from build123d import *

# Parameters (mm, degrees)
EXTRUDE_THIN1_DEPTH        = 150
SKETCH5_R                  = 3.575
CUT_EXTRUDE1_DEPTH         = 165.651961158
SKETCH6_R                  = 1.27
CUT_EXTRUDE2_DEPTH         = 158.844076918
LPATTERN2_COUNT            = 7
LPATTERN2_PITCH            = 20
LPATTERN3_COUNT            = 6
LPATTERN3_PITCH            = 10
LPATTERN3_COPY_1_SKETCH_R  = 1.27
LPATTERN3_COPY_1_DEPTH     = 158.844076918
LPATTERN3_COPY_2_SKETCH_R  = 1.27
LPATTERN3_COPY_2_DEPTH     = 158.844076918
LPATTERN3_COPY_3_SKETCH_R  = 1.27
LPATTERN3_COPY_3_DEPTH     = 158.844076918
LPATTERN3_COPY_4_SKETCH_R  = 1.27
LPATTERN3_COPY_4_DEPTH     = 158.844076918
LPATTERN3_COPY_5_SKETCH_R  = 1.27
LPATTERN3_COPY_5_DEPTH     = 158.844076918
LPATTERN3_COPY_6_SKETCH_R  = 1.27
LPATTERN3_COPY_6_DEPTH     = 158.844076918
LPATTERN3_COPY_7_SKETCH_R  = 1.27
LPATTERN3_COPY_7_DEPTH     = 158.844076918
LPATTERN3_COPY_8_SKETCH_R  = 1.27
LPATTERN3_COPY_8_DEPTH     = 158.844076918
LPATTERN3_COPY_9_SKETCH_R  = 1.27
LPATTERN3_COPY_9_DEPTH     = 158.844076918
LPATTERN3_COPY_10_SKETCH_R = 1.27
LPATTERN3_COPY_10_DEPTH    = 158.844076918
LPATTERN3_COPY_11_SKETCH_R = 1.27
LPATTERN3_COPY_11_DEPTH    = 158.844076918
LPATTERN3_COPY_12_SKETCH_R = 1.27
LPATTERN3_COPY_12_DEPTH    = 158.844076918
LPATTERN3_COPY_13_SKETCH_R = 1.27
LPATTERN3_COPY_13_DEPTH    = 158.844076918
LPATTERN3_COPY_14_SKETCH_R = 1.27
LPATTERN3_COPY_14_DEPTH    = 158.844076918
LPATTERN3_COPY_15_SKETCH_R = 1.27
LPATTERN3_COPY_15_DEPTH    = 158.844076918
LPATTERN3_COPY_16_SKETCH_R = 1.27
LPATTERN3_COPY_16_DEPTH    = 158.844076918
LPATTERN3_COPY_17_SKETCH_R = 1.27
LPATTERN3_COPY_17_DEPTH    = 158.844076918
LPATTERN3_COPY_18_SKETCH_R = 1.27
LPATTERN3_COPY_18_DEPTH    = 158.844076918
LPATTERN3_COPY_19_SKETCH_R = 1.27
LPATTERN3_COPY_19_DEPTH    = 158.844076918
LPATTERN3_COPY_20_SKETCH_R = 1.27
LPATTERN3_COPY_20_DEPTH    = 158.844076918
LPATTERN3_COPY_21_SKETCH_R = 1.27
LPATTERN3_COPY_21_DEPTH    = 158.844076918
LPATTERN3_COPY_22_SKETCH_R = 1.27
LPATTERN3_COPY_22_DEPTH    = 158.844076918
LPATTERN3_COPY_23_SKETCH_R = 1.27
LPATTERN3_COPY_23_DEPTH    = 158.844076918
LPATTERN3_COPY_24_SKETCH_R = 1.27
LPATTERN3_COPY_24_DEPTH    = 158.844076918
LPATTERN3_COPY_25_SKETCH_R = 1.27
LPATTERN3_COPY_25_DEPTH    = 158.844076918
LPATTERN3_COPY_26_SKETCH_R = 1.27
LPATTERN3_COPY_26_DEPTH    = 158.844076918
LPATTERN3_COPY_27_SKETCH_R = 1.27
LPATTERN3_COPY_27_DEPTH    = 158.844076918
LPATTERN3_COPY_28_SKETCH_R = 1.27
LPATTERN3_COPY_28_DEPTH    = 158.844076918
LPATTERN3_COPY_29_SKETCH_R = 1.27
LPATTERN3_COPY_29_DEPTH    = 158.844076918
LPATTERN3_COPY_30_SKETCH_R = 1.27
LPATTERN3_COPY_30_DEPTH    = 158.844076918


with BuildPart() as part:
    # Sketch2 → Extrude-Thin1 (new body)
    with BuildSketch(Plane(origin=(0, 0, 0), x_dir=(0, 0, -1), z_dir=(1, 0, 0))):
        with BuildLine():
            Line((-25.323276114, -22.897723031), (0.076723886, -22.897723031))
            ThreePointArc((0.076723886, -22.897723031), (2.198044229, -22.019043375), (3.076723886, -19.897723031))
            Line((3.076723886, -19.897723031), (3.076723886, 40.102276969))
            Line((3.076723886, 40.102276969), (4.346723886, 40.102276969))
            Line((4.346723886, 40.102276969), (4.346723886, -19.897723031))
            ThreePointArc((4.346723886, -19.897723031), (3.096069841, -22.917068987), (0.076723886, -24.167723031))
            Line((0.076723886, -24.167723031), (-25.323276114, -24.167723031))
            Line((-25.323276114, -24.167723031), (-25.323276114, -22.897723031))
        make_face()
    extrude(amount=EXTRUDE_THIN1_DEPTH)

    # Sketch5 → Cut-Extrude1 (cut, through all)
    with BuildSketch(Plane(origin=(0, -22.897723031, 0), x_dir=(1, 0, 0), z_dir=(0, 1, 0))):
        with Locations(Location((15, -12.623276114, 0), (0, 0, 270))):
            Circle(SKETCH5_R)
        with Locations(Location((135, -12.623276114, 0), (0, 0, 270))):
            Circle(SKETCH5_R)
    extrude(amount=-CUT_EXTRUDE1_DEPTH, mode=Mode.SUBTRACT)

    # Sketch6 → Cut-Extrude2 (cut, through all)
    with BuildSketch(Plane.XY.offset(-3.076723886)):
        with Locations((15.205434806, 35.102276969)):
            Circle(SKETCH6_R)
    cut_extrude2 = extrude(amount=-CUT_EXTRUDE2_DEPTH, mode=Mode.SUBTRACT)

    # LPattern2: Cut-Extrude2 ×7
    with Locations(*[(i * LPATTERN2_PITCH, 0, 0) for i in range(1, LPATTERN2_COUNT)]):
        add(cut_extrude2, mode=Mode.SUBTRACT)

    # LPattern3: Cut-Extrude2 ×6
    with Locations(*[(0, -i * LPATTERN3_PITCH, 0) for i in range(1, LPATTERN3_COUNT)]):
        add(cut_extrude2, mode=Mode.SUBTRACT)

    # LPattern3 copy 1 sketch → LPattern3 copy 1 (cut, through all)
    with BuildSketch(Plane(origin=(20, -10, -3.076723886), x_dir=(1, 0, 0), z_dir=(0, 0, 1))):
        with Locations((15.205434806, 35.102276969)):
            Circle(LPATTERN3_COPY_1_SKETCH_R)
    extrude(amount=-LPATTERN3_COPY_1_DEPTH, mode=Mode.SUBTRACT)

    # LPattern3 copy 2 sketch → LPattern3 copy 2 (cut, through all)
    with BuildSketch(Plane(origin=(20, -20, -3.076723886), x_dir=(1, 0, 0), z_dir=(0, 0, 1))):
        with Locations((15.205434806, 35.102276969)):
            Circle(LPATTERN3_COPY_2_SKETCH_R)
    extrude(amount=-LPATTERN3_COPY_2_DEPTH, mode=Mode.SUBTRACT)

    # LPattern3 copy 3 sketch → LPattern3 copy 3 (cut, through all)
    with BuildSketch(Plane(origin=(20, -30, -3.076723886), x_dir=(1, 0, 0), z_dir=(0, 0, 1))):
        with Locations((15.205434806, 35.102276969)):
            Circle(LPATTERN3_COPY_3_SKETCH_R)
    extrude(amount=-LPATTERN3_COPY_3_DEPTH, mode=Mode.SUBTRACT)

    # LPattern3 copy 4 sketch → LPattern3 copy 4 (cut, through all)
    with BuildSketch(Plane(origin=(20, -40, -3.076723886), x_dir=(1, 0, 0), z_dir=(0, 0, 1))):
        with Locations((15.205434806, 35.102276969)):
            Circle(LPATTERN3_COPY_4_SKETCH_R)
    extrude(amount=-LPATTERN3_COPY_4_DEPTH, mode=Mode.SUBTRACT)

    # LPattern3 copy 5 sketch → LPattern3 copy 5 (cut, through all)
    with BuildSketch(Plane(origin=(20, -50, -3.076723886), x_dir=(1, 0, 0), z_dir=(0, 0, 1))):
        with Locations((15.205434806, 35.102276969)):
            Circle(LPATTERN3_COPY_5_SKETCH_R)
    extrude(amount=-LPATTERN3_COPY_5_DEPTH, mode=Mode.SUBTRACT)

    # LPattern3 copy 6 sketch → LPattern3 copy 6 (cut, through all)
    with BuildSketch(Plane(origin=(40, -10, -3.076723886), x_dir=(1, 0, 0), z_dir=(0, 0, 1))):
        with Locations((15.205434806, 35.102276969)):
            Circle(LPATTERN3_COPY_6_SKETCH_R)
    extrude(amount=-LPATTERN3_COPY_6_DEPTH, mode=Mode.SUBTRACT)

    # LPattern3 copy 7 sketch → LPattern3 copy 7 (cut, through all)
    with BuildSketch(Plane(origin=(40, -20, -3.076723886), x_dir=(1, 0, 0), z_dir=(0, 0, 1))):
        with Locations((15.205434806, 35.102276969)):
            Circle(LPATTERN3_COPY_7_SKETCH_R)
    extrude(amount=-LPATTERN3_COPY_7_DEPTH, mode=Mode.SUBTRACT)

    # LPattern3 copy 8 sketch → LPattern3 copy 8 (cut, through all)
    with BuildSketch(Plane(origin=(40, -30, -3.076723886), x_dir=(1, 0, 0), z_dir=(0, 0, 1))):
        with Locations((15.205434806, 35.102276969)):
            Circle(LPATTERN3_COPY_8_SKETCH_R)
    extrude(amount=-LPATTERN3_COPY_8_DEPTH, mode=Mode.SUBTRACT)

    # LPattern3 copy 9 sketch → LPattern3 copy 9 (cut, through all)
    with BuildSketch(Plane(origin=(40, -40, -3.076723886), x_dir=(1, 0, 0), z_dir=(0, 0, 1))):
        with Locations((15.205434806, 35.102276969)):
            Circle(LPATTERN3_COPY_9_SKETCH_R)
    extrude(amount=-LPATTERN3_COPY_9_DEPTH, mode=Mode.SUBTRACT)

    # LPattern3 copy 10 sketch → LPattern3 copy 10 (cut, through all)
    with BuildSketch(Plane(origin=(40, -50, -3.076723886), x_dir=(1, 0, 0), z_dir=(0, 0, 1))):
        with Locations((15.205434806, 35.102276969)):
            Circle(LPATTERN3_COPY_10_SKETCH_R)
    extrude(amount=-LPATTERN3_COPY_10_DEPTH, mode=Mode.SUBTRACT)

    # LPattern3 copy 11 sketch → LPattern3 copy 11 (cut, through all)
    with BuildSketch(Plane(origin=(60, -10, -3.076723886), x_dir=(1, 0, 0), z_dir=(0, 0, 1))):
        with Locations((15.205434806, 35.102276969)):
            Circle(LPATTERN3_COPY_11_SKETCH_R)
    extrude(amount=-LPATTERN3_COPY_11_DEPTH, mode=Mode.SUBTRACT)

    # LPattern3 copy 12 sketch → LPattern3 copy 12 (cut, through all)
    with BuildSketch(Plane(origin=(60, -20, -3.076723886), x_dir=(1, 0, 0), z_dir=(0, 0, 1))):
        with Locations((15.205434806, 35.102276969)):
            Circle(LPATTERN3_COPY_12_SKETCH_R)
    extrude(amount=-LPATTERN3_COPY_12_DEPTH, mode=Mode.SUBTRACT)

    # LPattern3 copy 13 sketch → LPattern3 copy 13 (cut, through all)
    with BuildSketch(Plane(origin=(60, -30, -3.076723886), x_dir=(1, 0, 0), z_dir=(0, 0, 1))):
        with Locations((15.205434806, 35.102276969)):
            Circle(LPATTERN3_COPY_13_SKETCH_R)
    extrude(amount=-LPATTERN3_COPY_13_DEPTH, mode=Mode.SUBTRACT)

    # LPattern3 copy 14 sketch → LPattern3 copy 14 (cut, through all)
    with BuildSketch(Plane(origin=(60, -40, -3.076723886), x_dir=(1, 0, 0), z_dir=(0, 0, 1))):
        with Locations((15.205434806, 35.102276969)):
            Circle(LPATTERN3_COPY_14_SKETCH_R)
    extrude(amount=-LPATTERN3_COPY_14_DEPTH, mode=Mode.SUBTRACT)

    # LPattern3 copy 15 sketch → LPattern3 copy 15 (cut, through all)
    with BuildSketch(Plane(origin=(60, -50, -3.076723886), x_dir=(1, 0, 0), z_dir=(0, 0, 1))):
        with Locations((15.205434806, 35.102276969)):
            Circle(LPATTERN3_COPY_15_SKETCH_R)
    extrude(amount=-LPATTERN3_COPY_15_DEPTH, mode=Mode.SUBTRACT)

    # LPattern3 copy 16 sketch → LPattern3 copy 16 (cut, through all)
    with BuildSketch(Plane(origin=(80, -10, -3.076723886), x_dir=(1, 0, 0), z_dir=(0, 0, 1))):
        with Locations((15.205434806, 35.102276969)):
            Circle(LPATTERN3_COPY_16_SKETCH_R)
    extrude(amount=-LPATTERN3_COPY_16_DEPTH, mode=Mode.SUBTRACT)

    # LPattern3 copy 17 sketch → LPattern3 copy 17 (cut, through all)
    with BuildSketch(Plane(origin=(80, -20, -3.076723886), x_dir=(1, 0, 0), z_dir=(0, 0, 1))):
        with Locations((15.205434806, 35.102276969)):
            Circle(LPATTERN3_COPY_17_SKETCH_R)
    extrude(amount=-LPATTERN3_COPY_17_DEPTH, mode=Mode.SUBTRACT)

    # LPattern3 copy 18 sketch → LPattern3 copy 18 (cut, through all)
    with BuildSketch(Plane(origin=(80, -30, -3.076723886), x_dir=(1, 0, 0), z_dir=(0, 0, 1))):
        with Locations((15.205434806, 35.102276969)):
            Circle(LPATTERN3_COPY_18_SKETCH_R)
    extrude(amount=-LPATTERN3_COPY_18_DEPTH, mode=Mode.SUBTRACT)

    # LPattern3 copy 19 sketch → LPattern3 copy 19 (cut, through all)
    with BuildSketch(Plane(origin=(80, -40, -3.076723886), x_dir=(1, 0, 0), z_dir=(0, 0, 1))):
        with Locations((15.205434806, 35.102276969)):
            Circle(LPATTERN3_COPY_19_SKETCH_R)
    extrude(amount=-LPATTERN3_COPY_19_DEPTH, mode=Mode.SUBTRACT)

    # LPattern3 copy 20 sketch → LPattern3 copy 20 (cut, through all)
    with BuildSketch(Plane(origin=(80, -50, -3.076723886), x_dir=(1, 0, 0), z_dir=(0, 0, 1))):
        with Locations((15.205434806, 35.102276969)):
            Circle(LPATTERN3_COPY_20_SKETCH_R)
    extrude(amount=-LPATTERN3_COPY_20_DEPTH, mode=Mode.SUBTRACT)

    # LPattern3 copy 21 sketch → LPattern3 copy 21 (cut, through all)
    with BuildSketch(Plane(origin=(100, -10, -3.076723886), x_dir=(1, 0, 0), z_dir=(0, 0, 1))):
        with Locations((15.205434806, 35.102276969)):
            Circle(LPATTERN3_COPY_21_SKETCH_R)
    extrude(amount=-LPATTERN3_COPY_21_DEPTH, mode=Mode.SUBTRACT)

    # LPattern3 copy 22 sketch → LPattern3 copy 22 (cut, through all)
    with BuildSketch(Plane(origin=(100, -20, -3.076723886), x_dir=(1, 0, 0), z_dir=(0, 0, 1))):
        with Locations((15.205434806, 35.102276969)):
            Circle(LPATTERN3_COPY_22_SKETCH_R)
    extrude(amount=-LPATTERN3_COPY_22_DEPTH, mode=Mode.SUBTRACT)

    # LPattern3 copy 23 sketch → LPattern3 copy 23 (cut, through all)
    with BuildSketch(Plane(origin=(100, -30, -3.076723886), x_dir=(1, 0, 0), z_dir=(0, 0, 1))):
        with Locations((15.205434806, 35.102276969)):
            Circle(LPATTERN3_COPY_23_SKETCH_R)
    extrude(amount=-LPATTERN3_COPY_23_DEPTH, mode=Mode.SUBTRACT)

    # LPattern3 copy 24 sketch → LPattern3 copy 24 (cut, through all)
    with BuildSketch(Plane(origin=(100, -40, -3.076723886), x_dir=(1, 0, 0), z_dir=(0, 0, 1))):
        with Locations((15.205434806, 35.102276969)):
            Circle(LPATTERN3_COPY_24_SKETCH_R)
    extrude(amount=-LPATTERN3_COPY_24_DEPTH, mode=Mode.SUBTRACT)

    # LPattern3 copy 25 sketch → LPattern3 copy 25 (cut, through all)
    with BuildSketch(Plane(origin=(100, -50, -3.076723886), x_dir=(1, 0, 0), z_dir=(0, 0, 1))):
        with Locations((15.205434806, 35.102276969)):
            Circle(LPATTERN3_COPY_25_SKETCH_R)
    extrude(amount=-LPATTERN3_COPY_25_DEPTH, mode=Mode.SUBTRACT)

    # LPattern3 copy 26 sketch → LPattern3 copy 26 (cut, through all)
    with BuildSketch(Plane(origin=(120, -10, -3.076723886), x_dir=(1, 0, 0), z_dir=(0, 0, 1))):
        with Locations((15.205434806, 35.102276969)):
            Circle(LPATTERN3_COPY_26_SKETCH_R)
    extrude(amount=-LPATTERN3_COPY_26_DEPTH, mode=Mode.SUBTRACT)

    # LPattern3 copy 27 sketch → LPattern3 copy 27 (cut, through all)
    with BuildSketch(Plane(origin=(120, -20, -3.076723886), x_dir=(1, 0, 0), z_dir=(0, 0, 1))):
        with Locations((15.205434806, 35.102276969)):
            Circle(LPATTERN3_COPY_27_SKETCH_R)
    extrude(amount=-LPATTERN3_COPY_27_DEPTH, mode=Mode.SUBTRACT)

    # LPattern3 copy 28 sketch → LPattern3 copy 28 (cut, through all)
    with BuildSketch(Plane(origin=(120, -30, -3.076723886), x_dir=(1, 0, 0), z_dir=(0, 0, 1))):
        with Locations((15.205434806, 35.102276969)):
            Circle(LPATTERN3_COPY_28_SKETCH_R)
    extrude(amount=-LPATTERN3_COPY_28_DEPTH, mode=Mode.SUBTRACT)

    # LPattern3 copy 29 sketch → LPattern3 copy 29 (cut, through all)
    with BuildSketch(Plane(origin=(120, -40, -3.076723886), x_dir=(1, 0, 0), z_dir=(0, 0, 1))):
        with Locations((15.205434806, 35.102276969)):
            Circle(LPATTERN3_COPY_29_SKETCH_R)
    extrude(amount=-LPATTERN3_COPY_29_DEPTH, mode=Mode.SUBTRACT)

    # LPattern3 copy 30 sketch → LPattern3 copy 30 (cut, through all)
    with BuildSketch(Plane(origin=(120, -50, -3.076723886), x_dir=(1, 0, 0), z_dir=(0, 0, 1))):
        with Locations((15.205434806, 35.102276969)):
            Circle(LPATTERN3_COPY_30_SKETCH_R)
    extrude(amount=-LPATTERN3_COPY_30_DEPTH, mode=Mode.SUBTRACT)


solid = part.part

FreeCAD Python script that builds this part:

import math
import FreeCAD as App
import Part
import Sketcher
from FreeCAD import Vector
Q = App.Units.Quantity

doc = App.newDocument("Part")
params = doc.addObject("Spreadsheet::Sheet", "Params")
for row, (alias, value) in enumerate([
    ("sketch1_radius", "3 mm"),
    ("sketch1_width", "60 mm"),
    ("sketch1_radius2", "4.27 mm"),
    ("sketch1_height", "25.4 mm"),
    ("pad1_length", "150 mm"),
    ("sketch2_diameter", "7.15 mm"),
    ("sketch3_diameter", "2.54 mm"),
    ("linearpattern_pitch", "20 mm"),
    ("linearpattern2_pitch", "10 mm"),
    ("sketch4_diameter", "2.54 mm"),
    ("sketch5_diameter", "2.54 mm"),
    ("sketch6_diameter", "2.54 mm"),
    ("sketch7_diameter", "2.54 mm"),
    ("sketch8_diameter", "2.54 mm"),
    ("sketch9_diameter", "2.54 mm"),
    ("sketch10_diameter", "2.54 mm"),
    ("sketch11_diameter", "2.54 mm"),
    ("sketch12_diameter", "2.54 mm"),
    ("sketch13_diameter", "2.54 mm"),
    ("sketch14_diameter", "2.54 mm"),
    ("sketch15_diameter", "2.54 mm"),
    ("sketch16_diameter", "2.54 mm"),
    ("sketch17_diameter", "2.54 mm"),
    ("sketch18_diameter", "2.54 mm"),
    ("sketch19_diameter", "2.54 mm"),
    ("sketch20_diameter", "2.54 mm"),
    ("sketch21_diameter", "2.54 mm"),
    ("sketch22_diameter", "2.54 mm"),
    ("sketch23_diameter", "2.54 mm"),
    ("sketch24_diameter", "2.54 mm"),
    ("sketch25_diameter", "2.54 mm"),
    ("sketch26_diameter", "2.54 mm"),
    ("sketch27_diameter", "2.54 mm"),
    ("sketch28_diameter", "2.54 mm"),
    ("sketch29_diameter", "2.54 mm"),
    ("sketch30_diameter", "2.54 mm"),
    ("sketch31_diameter", "2.54 mm"),
    ("sketch32_diameter", "2.54 mm"),
    ("sketch33_diameter", "2.54 mm"),
], start=1):
    params.set(f"A{row}", alias)
    params.set(f"B{row}", "=" + value)
    params.setAlias(f"B{row}", alias)

body = doc.addObject("PartDesign::Body", "Body")

# Sketch on YZ plane
sketch1 = doc.addObject("Sketcher::SketchObject", "Sketch")
body.addObject(sketch1)
sketch1.AttachmentSupport = (doc.YZ_Plane, [""])
sketch1.MapMode = "FlatFace"
sketch1.addGeometry(Part.LineSegment(Vector(-22.897723, -0.076724, 0), Vector(-22.897723, 25.323276, 0)), False)
sketch1.addGeometry(Part.LineSegment(Vector(-22.897723, 25.323276, 0), Vector(-24.167723, 25.323276, 0)), False)
sketch1.addGeometry(Part.LineSegment(Vector(-24.167723, 25.323276, 0), Vector(-24.167723, -0.076724, 0)), False)
sketch1.addGeometry(Part.ArcOfCircle(Part.Circle(Vector(-19.897723, -0.076724, 0), Vector(0, 0, 1), 4.27), math.radians(-180), math.radians(-90)), False)
sketch1.addGeometry(Part.LineSegment(Vector(-19.897723, -4.346724, 0), Vector(40.102277, -4.346724, 0)), False)
sketch1.addGeometry(Part.LineSegment(Vector(40.102277, -4.346724, 0), Vector(40.102277, -3.076724, 0)), False)
sketch1.addGeometry(Part.LineSegment(Vector(40.102277, -3.076724, 0), Vector(-19.897723, -3.076724, 0)), False)
sketch1.addGeometry(Part.ArcOfCircle(Part.Circle(Vector(-19.897723, -0.076724, 0), Vector(0, 0, 1), 3), math.radians(180), math.radians(270)), False)
sketch1.addConstraint(Sketcher.Constraint("Coincident", 0, 2, 1, 1))
sketch1.addConstraint(Sketcher.Constraint("Coincident", 1, 2, 2, 1))
sketch1.addConstraint(Sketcher.Constraint("Tangent", 2, 2, 3, 1))
sketch1.addConstraint(Sketcher.Constraint("Tangent", 3, 2, 4, 1))
sketch1.addConstraint(Sketcher.Constraint("Coincident", 4, 2, 5, 1))
sketch1.addConstraint(Sketcher.Constraint("Coincident", 5, 2, 6, 1))
sketch1.addConstraint(Sketcher.Constraint("Tangent", 6, 2, 7, 2))
sketch1.addConstraint(Sketcher.Constraint("Tangent", 7, 1, 0, 1))
sketch1.addConstraint(Sketcher.Constraint("Vertical", 0))
sketch1.addConstraint(Sketcher.Constraint("Horizontal", 1))
sketch1.addConstraint(Sketcher.Constraint("Vertical", 2))
sketch1.addConstraint(Sketcher.Constraint("Horizontal", 4))
sketch1.addConstraint(Sketcher.Constraint("Vertical", 5))
sketch1.addConstraint(Sketcher.Constraint("Horizontal", 6))
sketch1.addConstraint(Sketcher.Constraint("Coincident", 7, 3, 3, 3))
sketch1.addConstraint(Sketcher.Constraint("Radius", 7, Q("3 mm")))
sketch1.addConstraint(Sketcher.Constraint("DistanceX", 4, 1, 4, 2, Q("60 mm")))
sketch1.addConstraint(Sketcher.Constraint("Radius", 3, Q("4.27 mm")))
sketch1.addConstraint(Sketcher.Constraint("DistanceY", 0, 1, 0, 2, Q("25.4 mm")))
sketch1.addConstraint(Sketcher.Constraint("DistanceX", 3, 3, -1, 1, Q("19.897723 mm")))
sketch1.addConstraint(Sketcher.Constraint("DistanceY", 3, 3, -1, 1, Q("0.076724 mm")))
sketch1.setExpression("Constraints[15]", "Params.sketch1_radius")
sketch1.setExpression("Constraints[16]", "Params.sketch1_width")
sketch1.setExpression("Constraints[17]", "Params.sketch1_radius2")
sketch1.setExpression("Constraints[18]", "Params.sketch1_height")
pad1 = doc.addObject("PartDesign::Pad", "Pad")
body.addObject(pad1)
pad1.Profile = sketch1
pad1.setExpression("Length", "Params.pad1_length")

# Sketch on XZ plane
sketch2 = doc.addObject("Sketcher::SketchObject", "Sketch001")
body.addObject(sketch2)
sketch2.AttachmentSupport = (doc.XZ_Plane, [""])
sketch2.MapMode = "FlatFace"
sketch2.AttachmentOffset = App.Placement(Vector(0, 0, 22.897723), App.Rotation())
sketch2.addGeometry(Part.Circle(Vector(15, 12.623276, 0), Vector(0, 0, 1), 3.575), False)
sketch2.addGeometry(Part.Circle(Vector(135, 12.623276, 0), Vector(0, 0, 1), 3.575), False)
sketch2.addConstraint(Sketcher.Constraint("Equal", 0, 1))
sketch2.addConstraint(Sketcher.Constraint("Horizontal", 0, 3, 1, 3))
sketch2.addConstraint(Sketcher.Constraint("Diameter", 0, Q("7.15 mm")))
sketch2.addConstraint(Sketcher.Constraint("DistanceX", -1, 1, 0, 3, Q("15 mm")))
sketch2.addConstraint(Sketcher.Constraint("DistanceX", -1, 1, 1, 3, Q("135 mm")))
sketch2.addConstraint(Sketcher.Constraint("DistanceY", -1, 1, 0, 3, Q("12.623276 mm")))
sketch2.setExpression("Constraints[2]", "Params.sketch2_diameter")
pocket1 = doc.addObject("PartDesign::Pocket", "Pocket")
body.addObject(pocket1)
pocket1.Profile = sketch2
pocket1.Type = "ThroughAll"
pocket1.Reversed = True

# Sketch on XY plane
sketch3 = doc.addObject("Sketcher::SketchObject", "Sketch002")
body.addObject(sketch3)
sketch3.AttachmentSupport = (doc.XY_Plane, [""])
sketch3.MapMode = "FlatFace"
sketch3.AttachmentOffset = App.Placement(Vector(0, 0, -3.076724), App.Rotation())
sketch3.addGeometry(Part.Circle(Vector(15.205435, 35.102277, 0), Vector(0, 0, 1), 1.27), False)
sketch3.addConstraint(Sketcher.Constraint("Diameter", 0, Q("2.54 mm")))
sketch3.addConstraint(Sketcher.Constraint("DistanceX", -1, 1, 0, 3, Q("15.205435 mm")))
sketch3.addConstraint(Sketcher.Constraint("DistanceY", -1, 1, 0, 3, Q("35.102277 mm")))
sketch3.setExpression("Constraints[0]", "Params.sketch3_diameter")
pocket2 = doc.addObject("PartDesign::Pocket", "Pocket001")
body.addObject(pocket2)
pocket2.Profile = sketch3
pocket2.Type = "ThroughAll"
doc.recompute()

linearpattern = doc.addObject("PartDesign::LinearPattern", "LinearPattern")
body.addObject(linearpattern)
linearpattern.Originals = [pocket2]
linearpattern.Direction = (doc.X_Axis, [""])
linearpattern.Mode = "offset"
linearpattern.setExpression("Offset", "Params.linearpattern_pitch")
linearpattern.Occurrences = 7
body.Tip = linearpattern
doc.recompute()

linearpattern2 = doc.addObject("PartDesign::LinearPattern", "LinearPattern001")
body.addObject(linearpattern2)
linearpattern2.Originals = [pocket2]
linearpattern2.Direction = (doc.Y_Axis, [""])
linearpattern2.Mode = "offset"
linearpattern2.setExpression("Offset", "Params.linearpattern2_pitch")
linearpattern2.Occurrences = 6
linearpattern2.Reversed = True
body.Tip = linearpattern2

# Sketch on XY plane
sketch4 = doc.addObject("Sketcher::SketchObject", "Sketch003")
body.addObject(sketch4)
sketch4.AttachmentSupport = (doc.XY_Plane, [""])
sketch4.MapMode = "FlatFace"
sketch4.AttachmentOffset = App.Placement(Vector(0, 0, -3.076724), App.Rotation())
sketch4.addGeometry(Part.Circle(Vector(35.205435, 25.102277, 0), Vector(0, 0, 1), 1.27), False)
sketch4.addConstraint(Sketcher.Constraint("Diameter", 0, Q("2.54 mm")))
sketch4.addConstraint(Sketcher.Constraint("DistanceX", -1, 1, 0, 3, Q("35.205435 mm")))
sketch4.addConstraint(Sketcher.Constraint("DistanceY", -1, 1, 0, 3, Q("25.102277 mm")))
sketch4.setExpression("Constraints[0]", "Params.sketch4_diameter")
pocket3 = doc.addObject("PartDesign::Pocket", "Pocket002")
body.addObject(pocket3)
pocket3.Profile = sketch4
pocket3.Type = "ThroughAll"

# Sketch on XY plane
sketch5 = doc.addObject("Sketcher::SketchObject", "Sketch004")
body.addObject(sketch5)
sketch5.AttachmentSupport = (doc.XY_Plane, [""])
sketch5.MapMode = "FlatFace"
sketch5.AttachmentOffset = App.Placement(Vector(0, 0, -3.076724), App.Rotation())
sketch5.addGeometry(Part.Circle(Vector(35.205435, 15.102277, 0), Vector(0, 0, 1), 1.27), False)
sketch5.addConstraint(Sketcher.Constraint("Diameter", 0, Q("2.54 mm")))
sketch5.addConstraint(Sketcher.Constraint("DistanceX", -1, 1, 0, 3, Q("35.205435 mm")))
sketch5.addConstraint(Sketcher.Constraint("DistanceY", -1, 1, 0, 3, Q("15.102277 mm")))
sketch5.setExpression("Constraints[0]", "Params.sketch5_diameter")
pocket4 = doc.addObject("PartDesign::Pocket", "Pocket003")
body.addObject(pocket4)
pocket4.Profile = sketch5
pocket4.Type = "ThroughAll"

# Sketch on XY plane
sketch6 = doc.addObject("Sketcher::SketchObject", "Sketch005")
body.addObject(sketch6)
sketch6.AttachmentSupport = (doc.XY_Plane, [""])
sketch6.MapMode = "FlatFace"
sketch6.AttachmentOffset = App.Placement(Vector(0, 0, -3.076724), App.Rotation())
sketch6.addGeometry(Part.Circle(Vector(35.205435, 5.102277, 0), Vector(0, 0, 1), 1.27), False)
sketch6.addConstraint(Sketcher.Constraint("Diameter", 0, Q("2.54 mm")))
sketch6.addConstraint(Sketcher.Constraint("DistanceX", -1, 1, 0, 3, Q("35.205435 mm")))
sketch6.addConstraint(Sketcher.Constraint("DistanceY", -1, 1, 0, 3, Q("5.102277 mm")))
sketch6.setExpression("Constraints[0]", "Params.sketch6_diameter")
pocket5 = doc.addObject("PartDesign::Pocket", "Pocket004")
body.addObject(pocket5)
pocket5.Profile = sketch6
pocket5.Type = "ThroughAll"

# Sketch on XY plane
sketch7 = doc.addObject("Sketcher::SketchObject", "Sketch006")
body.addObject(sketch7)
sketch7.AttachmentSupport = (doc.XY_Plane, [""])
sketch7.MapMode = "FlatFace"
sketch7.AttachmentOffset = App.Placement(Vector(0, 0, -3.076724), App.Rotation())
sketch7.addGeometry(Part.Circle(Vector(35.205435, -4.897723, 0), Vector(0, 0, 1), 1.27), False)
sketch7.addConstraint(Sketcher.Constraint("Diameter", 0, Q("2.54 mm")))
sketch7.addConstraint(Sketcher.Constraint("DistanceX", -1, 1, 0, 3, Q("35.205435 mm")))
sketch7.addConstraint(Sketcher.Constraint("DistanceY", 0, 3, -1, 1, Q("4.897723 mm")))
sketch7.setExpression("Constraints[0]", "Params.sketch7_diameter")
pocket6 = doc.addObject("PartDesign::Pocket", "Pocket005")
body.addObject(pocket6)
pocket6.Profile = sketch7
pocket6.Type = "ThroughAll"

# Sketch on XY plane
sketch8 = doc.addObject("Sketcher::SketchObject", "Sketch007")
body.addObject(sketch8)
sketch8.AttachmentSupport = (doc.XY_Plane, [""])
sketch8.MapMode = "FlatFace"
sketch8.AttachmentOffset = App.Placement(Vector(0, 0, -3.076724), App.Rotation())
sketch8.addGeometry(Part.Circle(Vector(35.205435, -14.897723, 0), Vector(0, 0, 1), 1.27), False)
sketch8.addConstraint(Sketcher.Constraint("Diameter", 0, Q("2.54 mm")))
sketch8.addConstraint(Sketcher.Constraint("DistanceX", -1, 1, 0, 3, Q("35.205435 mm")))
sketch8.addConstraint(Sketcher.Constraint("DistanceY", 0, 3, -1, 1, Q("14.897723 mm")))
sketch8.setExpression("Constraints[0]", "Params.sketch8_diameter")
pocket7 = doc.addObject("PartDesign::Pocket", "Pocket006")
body.addObject(pocket7)
pocket7.Profile = sketch8
pocket7.Type = "ThroughAll"

# Sketch on XY plane
sketch9 = doc.addObject("Sketcher::SketchObject", "Sketch008")
body.addObject(sketch9)
sketch9.AttachmentSupport = (doc.XY_Plane, [""])
sketch9.MapMode = "FlatFace"
sketch9.AttachmentOffset = App.Placement(Vector(0, 0, -3.076724), App.Rotation())
sketch9.addGeometry(Part.Circle(Vector(55.205435, 25.102277, 0), Vector(0, 0, 1), 1.27), False)
sketch9.addConstraint(Sketcher.Constraint("Diameter", 0, Q("2.54 mm")))
sketch9.addConstraint(Sketcher.Constraint("DistanceX", -1, 1, 0, 3, Q("55.205435 mm")))
sketch9.addConstraint(Sketcher.Constraint("DistanceY", -1, 1, 0, 3, Q("25.102277 mm")))
sketch9.setExpression("Constraints[0]", "Params.sketch9_diameter")
pocket8 = doc.addObject("PartDesign::Pocket", "Pocket007")
body.addObject(pocket8)
pocket8.Profile = sketch9
pocket8.Type = "ThroughAll"

# Sketch on XY plane
sketch10 = doc.addObject("Sketcher::SketchObject", "Sketch009")
body.addObject(sketch10)
sketch10.AttachmentSupport = (doc.XY_Plane, [""])
sketch10.MapMode = "FlatFace"
sketch10.AttachmentOffset = App.Placement(Vector(0, 0, -3.076724), App.Rotation())
sketch10.addGeometry(Part.Circle(Vector(55.205435, 15.102277, 0), Vector(0, 0, 1), 1.27), False)
sketch10.addConstraint(Sketcher.Constraint("Diameter", 0, Q("2.54 mm")))
sketch10.addConstraint(Sketcher.Constraint("DistanceX", -1, 1, 0, 3, Q("55.205435 mm")))
sketch10.addConstraint(Sketcher.Constraint("DistanceY", -1, 1, 0, 3, Q("15.102277 mm")))
sketch10.setExpression("Constraints[0]", "Params.sketch10_diameter")
pocket9 = doc.addObject("PartDesign::Pocket", "Pocket008")
body.addObject(pocket9)
pocket9.Profile = sketch10
pocket9.Type = "ThroughAll"

# Sketch on XY plane
sketch11 = doc.addObject("Sketcher::SketchObject", "Sketch010")
body.addObject(sketch11)
sketch11.AttachmentSupport = (doc.XY_Plane, [""])
sketch11.MapMode = "FlatFace"
sketch11.AttachmentOffset = App.Placement(Vector(0, 0, -3.076724), App.Rotation())
sketch11.addGeometry(Part.Circle(Vector(55.205435, 5.102277, 0), Vector(0, 0, 1), 1.27), False)
sketch11.addConstraint(Sketcher.Constraint("Diameter", 0, Q("2.54 mm")))
sketch11.addConstraint(Sketcher.Constraint("DistanceX", -1, 1, 0, 3, Q("55.205435 mm")))
sketch11.addConstraint(Sketcher.Constraint("DistanceY", -1, 1, 0, 3, Q("5.102277 mm")))
sketch11.setExpression("Constraints[0]", "Params.sketch11_diameter")
pocket10 = doc.addObject("PartDesign::Pocket", "Pocket009")
body.addObject(pocket10)
pocket10.Profile = sketch11
pocket10.Type = "ThroughAll"

# Sketch on XY plane
sketch12 = doc.addObject("Sketcher::SketchObject", "Sketch011")
body.addObject(sketch12)
sketch12.AttachmentSupport = (doc.XY_Plane, [""])
sketch12.MapMode = "FlatFace"
sketch12.AttachmentOffset = App.Placement(Vector(0, 0, -3.076724), App.Rotation())
sketch12.addGeometry(Part.Circle(Vector(55.205435, -4.897723, 0), Vector(0, 0, 1), 1.27), False)
sketch12.addConstraint(Sketcher.Constraint("Diameter", 0, Q("2.54 mm")))
sketch12.addConstraint(Sketcher.Constraint("DistanceX", -1, 1, 0, 3, Q("55.205435 mm")))
sketch12.addConstraint(Sketcher.Constraint("DistanceY", 0, 3, -1, 1, Q("4.897723 mm")))
sketch12.setExpression("Constraints[0]", "Params.sketch12_diameter")
pocket11 = doc.addObject("PartDesign::Pocket", "Pocket010")
body.addObject(pocket11)
pocket11.Profile = sketch12
pocket11.Type = "ThroughAll"

# Sketch on XY plane
sketch13 = doc.addObject("Sketcher::SketchObject", "Sketch012")
body.addObject(sketch13)
sketch13.AttachmentSupport = (doc.XY_Plane, [""])
sketch13.MapMode = "FlatFace"
sketch13.AttachmentOffset = App.Placement(Vector(0, 0, -3.076724), App.Rotation())
sketch13.addGeometry(Part.Circle(Vector(55.205435, -14.897723, 0), Vector(0, 0, 1), 1.27), False)
sketch13.addConstraint(Sketcher.Constraint("Diameter", 0, Q("2.54 mm")))
sketch13.addConstraint(Sketcher.Constraint("DistanceX", -1, 1, 0, 3, Q("55.205435 mm")))
sketch13.addConstraint(Sketcher.Constraint("DistanceY", 0, 3, -1, 1, Q("14.897723 mm")))
sketch13.setExpression("Constraints[0]", "Params.sketch13_diameter")
pocket12 = doc.addObject("PartDesign::Pocket", "Pocket011")
body.addObject(pocket12)
pocket12.Profile = sketch13
pocket12.Type = "ThroughAll"

# Sketch on XY plane
sketch14 = doc.addObject("Sketcher::SketchObject", "Sketch013")
body.addObject(sketch14)
sketch14.AttachmentSupport = (doc.XY_Plane, [""])
sketch14.MapMode = "FlatFace"
sketch14.AttachmentOffset = App.Placement(Vector(0, 0, -3.076724), App.Rotation())
sketch14.addGeometry(Part.Circle(Vector(75.205435, 25.102277, 0), Vector(0, 0, 1), 1.27), False)
sketch14.addConstraint(Sketcher.Constraint("Diameter", 0, Q("2.54 mm")))
sketch14.addConstraint(Sketcher.Constraint("DistanceX", -1, 1, 0, 3, Q("75.205435 mm")))
sketch14.addConstraint(Sketcher.Constraint("DistanceY", -1, 1, 0, 3, Q("25.102277 mm")))
sketch14.setExpression("Constraints[0]", "Params.sketch14_diameter")
pocket13 = doc.addObject("PartDesign::Pocket", "Pocket012")
body.addObject(pocket13)
pocket13.Profile = sketch14
pocket13.Type = "ThroughAll"

# Sketch on XY plane
sketch15 = doc.addObject("Sketcher::SketchObject", "Sketch014")
body.addObject(sketch15)
sketch15.AttachmentSupport = (doc.XY_Plane, [""])
sketch15.MapMode = "FlatFace"
sketch15.AttachmentOffset = App.Placement(Vector(0, 0, -3.076724), App.Rotation())
sketch15.addGeometry(Part.Circle(Vector(75.205435, 15.102277, 0), Vector(0, 0, 1), 1.27), False)
sketch15.addConstraint(Sketcher.Constraint("Diameter", 0, Q("2.54 mm")))
sketch15.addConstraint(Sketcher.Constraint("DistanceX", -1, 1, 0, 3, Q("75.205435 mm")))
sketch15.addConstraint(Sketcher.Constraint("DistanceY", -1, 1, 0, 3, Q("15.102277 mm")))
sketch15.setExpression("Constraints[0]", "Params.sketch15_diameter")
pocket14 = doc.addObject("PartDesign::Pocket", "Pocket013")
body.addObject(pocket14)
pocket14.Profile = sketch15
pocket14.Type = "ThroughAll"

# Sketch on XY plane
sketch16 = doc.addObject("Sketcher::SketchObject", "Sketch015")
body.addObject(sketch16)
sketch16.AttachmentSupport = (doc.XY_Plane, [""])
sketch16.MapMode = "FlatFace"
sketch16.AttachmentOffset = App.Placement(Vector(0, 0, -3.076724), App.Rotation())
sketch16.addGeometry(Part.Circle(Vector(75.205435, 5.102277, 0), Vector(0, 0, 1), 1.27), False)
sketch16.addConstraint(Sketcher.Constraint("Diameter", 0, Q("2.54 mm")))
sketch16.addConstraint(Sketcher.Constraint("DistanceX", -1, 1, 0, 3, Q("75.205435 mm")))
sketch16.addConstraint(Sketcher.Constraint("DistanceY", -1, 1, 0, 3, Q("5.102277 mm")))
sketch16.setExpression("Constraints[0]", "Params.sketch16_diameter")
pocket15 = doc.addObject("PartDesign::Pocket", "Pocket014")
body.addObject(pocket15)
pocket15.Profile = sketch16
pocket15.Type = "ThroughAll"

# Sketch on XY plane
sketch17 = doc.addObject("Sketcher::SketchObject", "Sketch016")
body.addObject(sketch17)
sketch17.AttachmentSupport = (doc.XY_Plane, [""])
sketch17.MapMode = "FlatFace"
sketch17.AttachmentOffset = App.Placement(Vector(0, 0, -3.076724), App.Rotation())
sketch17.addGeometry(Part.Circle(Vector(75.205435, -4.897723, 0), Vector(0, 0, 1), 1.27), False)
sketch17.addConstraint(Sketcher.Constraint("Diameter", 0, Q("2.54 mm")))
sketch17.addConstraint(Sketcher.Constraint("DistanceX", -1, 1, 0, 3, Q("75.205435 mm")))
sketch17.addConstraint(Sketcher.Constraint("DistanceY", 0, 3, -1, 1, Q("4.897723 mm")))
sketch17.setExpression("Constraints[0]", "Params.sketch17_diameter")
pocket16 = doc.addObject("PartDesign::Pocket", "Pocket015")
body.addObject(pocket16)
pocket16.Profile = sketch17
pocket16.Type = "ThroughAll"

# Sketch on XY plane
sketch18 = doc.addObject("Sketcher::SketchObject", "Sketch017")
body.addObject(sketch18)
sketch18.AttachmentSupport = (doc.XY_Plane, [""])
sketch18.MapMode = "FlatFace"
sketch18.AttachmentOffset = App.Placement(Vector(0, 0, -3.076724), App.Rotation())
sketch18.addGeometry(Part.Circle(Vector(75.205435, -14.897723, 0), Vector(0, 0, 1), 1.27), False)
sketch18.addConstraint(Sketcher.Constraint("Diameter", 0, Q("2.54 mm")))
sketch18.addConstraint(Sketcher.Constraint("DistanceX", -1, 1, 0, 3, Q("75.205435 mm")))
sketch18.addConstraint(Sketcher.Constraint("DistanceY", 0, 3, -1, 1, Q("14.897723 mm")))
sketch18.setExpression("Constraints[0]", "Params.sketch18_diameter")
pocket17 = doc.addObject("PartDesign::Pocket", "Pocket016")
body.addObject(pocket17)
pocket17.Profile = sketch18
pocket17.Type = "ThroughAll"

# Sketch on XY plane
sketch19 = doc.addObject("Sketcher::SketchObject", "Sketch018")
body.addObject(sketch19)
sketch19.AttachmentSupport = (doc.XY_Plane, [""])
sketch19.MapMode = "FlatFace"
sketch19.AttachmentOffset = App.Placement(Vector(0, 0, -3.076724), App.Rotation())
sketch19.addGeometry(Part.Circle(Vector(95.205435, 25.102277, 0), Vector(0, 0, 1), 1.27), False)
sketch19.addConstraint(Sketcher.Constraint("Diameter", 0, Q("2.54 mm")))
sketch19.addConstraint(Sketcher.Constraint("DistanceX", -1, 1, 0, 3, Q("95.205435 mm")))
sketch19.addConstraint(Sketcher.Constraint("DistanceY", -1, 1, 0, 3, Q("25.102277 mm")))
sketch19.setExpression("Constraints[0]", "Params.sketch19_diameter")
pocket18 = doc.addObject("PartDesign::Pocket", "Pocket017")
body.addObject(pocket18)
pocket18.Profile = sketch19
pocket18.Type = "ThroughAll"

# Sketch on XY plane
sketch20 = doc.addObject("Sketcher::SketchObject", "Sketch019")
body.addObject(sketch20)
sketch20.AttachmentSupport = (doc.XY_Plane, [""])
sketch20.MapMode = "FlatFace"
sketch20.AttachmentOffset = App.Placement(Vector(0, 0, -3.076724), App.Rotation())
sketch20.addGeometry(Part.Circle(Vector(95.205435, 15.102277, 0), Vector(0, 0, 1), 1.27), False)
sketch20.addConstraint(Sketcher.Constraint("Diameter", 0, Q("2.54 mm")))
sketch20.addConstraint(Sketcher.Constraint("DistanceX", -1, 1, 0, 3, Q("95.205435 mm")))
sketch20.addConstraint(Sketcher.Constraint("DistanceY", -1, 1, 0, 3, Q("15.102277 mm")))
sketch20.setExpression("Constraints[0]", "Params.sketch20_diameter")
pocket19 = doc.addObject("PartDesign::Pocket", "Pocket018")
body.addObject(pocket19)
pocket19.Profile = sketch20
pocket19.Type = "ThroughAll"

# Sketch on XY plane
sketch21 = doc.addObject("Sketcher::SketchObject", "Sketch020")
body.addObject(sketch21)
sketch21.AttachmentSupport = (doc.XY_Plane, [""])
sketch21.MapMode = "FlatFace"
sketch21.AttachmentOffset = App.Placement(Vector(0, 0, -3.076724), App.Rotation())
sketch21.addGeometry(Part.Circle(Vector(95.205435, 5.102277, 0), Vector(0, 0, 1), 1.27), False)
sketch21.addConstraint(Sketcher.Constraint("Diameter", 0, Q("2.54 mm")))
sketch21.addConstraint(Sketcher.Constraint("DistanceX", -1, 1, 0, 3, Q("95.205435 mm")))
sketch21.addConstraint(Sketcher.Constraint("DistanceY", -1, 1, 0, 3, Q("5.102277 mm")))
sketch21.setExpression("Constraints[0]", "Params.sketch21_diameter")
pocket20 = doc.addObject("PartDesign::Pocket", "Pocket019")
body.addObject(pocket20)
pocket20.Profile = sketch21
pocket20.Type = "ThroughAll"

# Sketch on XY plane
sketch22 = doc.addObject("Sketcher::SketchObject", "Sketch021")
body.addObject(sketch22)
sketch22.AttachmentSupport = (doc.XY_Plane, [""])
sketch22.MapMode = "FlatFace"
sketch22.AttachmentOffset = App.Placement(Vector(0, 0, -3.076724), App.Rotation())
sketch22.addGeometry(Part.Circle(Vector(95.205435, -4.897723, 0), Vector(0, 0, 1), 1.27), False)
sketch22.addConstraint(Sketcher.Constraint("Diameter", 0, Q("2.54 mm")))
sketch22.addConstraint(Sketcher.Constraint("DistanceX", -1, 1, 0, 3, Q("95.205435 mm")))
sketch22.addConstraint(Sketcher.Constraint("DistanceY", 0, 3, -1, 1, Q("4.897723 mm")))
sketch22.setExpression("Constraints[0]", "Params.sketch22_diameter")
pocket21 = doc.addObject("PartDesign::Pocket", "Pocket020")
body.addObject(pocket21)
pocket21.Profile = sketch22
pocket21.Type = "ThroughAll"

# Sketch on XY plane
sketch23 = doc.addObject("Sketcher::SketchObject", "Sketch022")
body.addObject(sketch23)
sketch23.AttachmentSupport = (doc.XY_Plane, [""])
sketch23.MapMode = "FlatFace"
sketch23.AttachmentOffset = App.Placement(Vector(0, 0, -3.076724), App.Rotation())
sketch23.addGeometry(Part.Circle(Vector(95.205435, -14.897723, 0), Vector(0, 0, 1), 1.27), False)
sketch23.addConstraint(Sketcher.Constraint("Diameter", 0, Q("2.54 mm")))
sketch23.addConstraint(Sketcher.Constraint("DistanceX", -1, 1, 0, 3, Q("95.205435 mm")))
sketch23.addConstraint(Sketcher.Constraint("DistanceY", 0, 3, -1, 1, Q("14.897723 mm")))
sketch23.setExpression("Constraints[0]", "Params.sketch23_diameter")
pocket22 = doc.addObject("PartDesign::Pocket", "Pocket021")
body.addObject(pocket22)
pocket22.Profile = sketch23
pocket22.Type = "ThroughAll"

# Sketch on XY plane
sketch24 = doc.addObject("Sketcher::SketchObject", "Sketch023")
body.addObject(sketch24)
sketch24.AttachmentSupport = (doc.XY_Plane, [""])
sketch24.MapMode = "FlatFace"
sketch24.AttachmentOffset = App.Placement(Vector(0, 0, -3.076724), App.Rotation())
sketch24.addGeometry(Part.Circle(Vector(115.205435, 25.102277, 0), Vector(0, 0, 1), 1.27), False)
sketch24.addConstraint(Sketcher.Constraint("Diameter", 0, Q("2.54 mm")))
sketch24.addConstraint(Sketcher.Constraint("DistanceX", -1, 1, 0, 3, Q("115.205435 mm")))
sketch24.addConstraint(Sketcher.Constraint("DistanceY", -1, 1, 0, 3, Q("25.102277 mm")))
sketch24.setExpression("Constraints[0]", "Params.sketch24_diameter")
pocket23 = doc.addObject("PartDesign::Pocket", "Pocket022")
body.addObject(pocket23)
pocket23.Profile = sketch24
pocket23.Type = "ThroughAll"

# Sketch on XY plane
sketch25 = doc.addObject("Sketcher::SketchObject", "Sketch024")
body.addObject(sketch25)
sketch25.AttachmentSupport = (doc.XY_Plane, [""])
sketch25.MapMode = "FlatFace"
sketch25.AttachmentOffset = App.Placement(Vector(0, 0, -3.076724), App.Rotation())
sketch25.addGeometry(Part.Circle(Vector(115.205435, 15.102277, 0), Vector(0, 0, 1), 1.27), False)
sketch25.addConstraint(Sketcher.Constraint("Diameter", 0, Q("2.54 mm")))
sketch25.addConstraint(Sketcher.Constraint("DistanceX", -1, 1, 0, 3, Q("115.205435 mm")))
sketch25.addConstraint(Sketcher.Constraint("DistanceY", -1, 1, 0, 3, Q("15.102277 mm")))
sketch25.setExpression("Constraints[0]", "Params.sketch25_diameter")
pocket24 = doc.addObject("PartDesign::Pocket", "Pocket023")
body.addObject(pocket24)
pocket24.Profile = sketch25
pocket24.Type = "ThroughAll"

# Sketch on XY plane
sketch26 = doc.addObject("Sketcher::SketchObject", "Sketch025")
body.addObject(sketch26)
sketch26.AttachmentSupport = (doc.XY_Plane, [""])
sketch26.MapMode = "FlatFace"
sketch26.AttachmentOffset = App.Placement(Vector(0, 0, -3.076724), App.Rotation())
sketch26.addGeometry(Part.Circle(Vector(115.205435, 5.102277, 0), Vector(0, 0, 1), 1.27), False)
sketch26.addConstraint(Sketcher.Constraint("Diameter", 0, Q("2.54 mm")))
sketch26.addConstraint(Sketcher.Constraint("DistanceX", -1, 1, 0, 3, Q("115.205435 mm")))
sketch26.addConstraint(Sketcher.Constraint("DistanceY", -1, 1, 0, 3, Q("5.102277 mm")))
sketch26.setExpression("Constraints[0]", "Params.sketch26_diameter")
pocket25 = doc.addObject("PartDesign::Pocket", "Pocket024")
body.addObject(pocket25)
pocket25.Profile = sketch26
pocket25.Type = "ThroughAll"

# Sketch on XY plane
sketch27 = doc.addObject("Sketcher::SketchObject", "Sketch026")
body.addObject(sketch27)
sketch27.AttachmentSupport = (doc.XY_Plane, [""])
sketch27.MapMode = "FlatFace"
sketch27.AttachmentOffset = App.Placement(Vector(0, 0, -3.076724), App.Rotation())
sketch27.addGeometry(Part.Circle(Vector(115.205435, -4.897723, 0), Vector(0, 0, 1), 1.27), False)
sketch27.addConstraint(Sketcher.Constraint("Diameter", 0, Q("2.54 mm")))
sketch27.addConstraint(Sketcher.Constraint("DistanceX", -1, 1, 0, 3, Q("115.205435 mm")))
sketch27.addConstraint(Sketcher.Constraint("DistanceY", 0, 3, -1, 1, Q("4.897723 mm")))
sketch27.setExpression("Constraints[0]", "Params.sketch27_diameter")
pocket26 = doc.addObject("PartDesign::Pocket", "Pocket025")
body.addObject(pocket26)
pocket26.Profile = sketch27
pocket26.Type = "ThroughAll"

# Sketch on XY plane
sketch28 = doc.addObject("Sketcher::SketchObject", "Sketch027")
body.addObject(sketch28)
sketch28.AttachmentSupport = (doc.XY_Plane, [""])
sketch28.MapMode = "FlatFace"
sketch28.AttachmentOffset = App.Placement(Vector(0, 0, -3.076724), App.Rotation())
sketch28.addGeometry(Part.Circle(Vector(115.205435, -14.897723, 0), Vector(0, 0, 1), 1.27), False)
sketch28.addConstraint(Sketcher.Constraint("Diameter", 0, Q("2.54 mm")))
sketch28.addConstraint(Sketcher.Constraint("DistanceX", -1, 1, 0, 3, Q("115.205435 mm")))
sketch28.addConstraint(Sketcher.Constraint("DistanceY", 0, 3, -1, 1, Q("14.897723 mm")))
sketch28.setExpression("Constraints[0]", "Params.sketch28_diameter")
pocket27 = doc.addObject("PartDesign::Pocket", "Pocket026")
body.addObject(pocket27)
pocket27.Profile = sketch28
pocket27.Type = "ThroughAll"

# Sketch on XY plane
sketch29 = doc.addObject("Sketcher::SketchObject", "Sketch028")
body.addObject(sketch29)
sketch29.AttachmentSupport = (doc.XY_Plane, [""])
sketch29.MapMode = "FlatFace"
sketch29.AttachmentOffset = App.Placement(Vector(0, 0, -3.076724), App.Rotation())
sketch29.addGeometry(Part.Circle(Vector(135.205435, 25.102277, 0), Vector(0, 0, 1), 1.27), False)
sketch29.addConstraint(Sketcher.Constraint("Diameter", 0, Q("2.54 mm")))
sketch29.addConstraint(Sketcher.Constraint("DistanceX", -1, 1, 0, 3, Q("135.205435 mm")))
sketch29.addConstraint(Sketcher.Constraint("DistanceY", -1, 1, 0, 3, Q("25.102277 mm")))
sketch29.setExpression("Constraints[0]", "Params.sketch29_diameter")
pocket28 = doc.addObject("PartDesign::Pocket", "Pocket027")
body.addObject(pocket28)
pocket28.Profile = sketch29
pocket28.Type = "ThroughAll"

# Sketch on XY plane
sketch30 = doc.addObject("Sketcher::SketchObject", "Sketch029")
body.addObject(sketch30)
sketch30.AttachmentSupport = (doc.XY_Plane, [""])
sketch30.MapMode = "FlatFace"
sketch30.AttachmentOffset = App.Placement(Vector(0, 0, -3.076724), App.Rotation())
sketch30.addGeometry(Part.Circle(Vector(135.205435, 15.102277, 0), Vector(0, 0, 1), 1.27), False)
sketch30.addConstraint(Sketcher.Constraint("Diameter", 0, Q("2.54 mm")))
sketch30.addConstraint(Sketcher.Constraint("DistanceX", -1, 1, 0, 3, Q("135.205435 mm")))
sketch30.addConstraint(Sketcher.Constraint("DistanceY", -1, 1, 0, 3, Q("15.102277 mm")))
sketch30.setExpression("Constraints[0]", "Params.sketch30_diameter")
pocket29 = doc.addObject("PartDesign::Pocket", "Pocket028")
body.addObject(pocket29)
pocket29.Profile = sketch30
pocket29.Type = "ThroughAll"

# Sketch on XY plane
sketch31 = doc.addObject("Sketcher::SketchObject", "Sketch030")
body.addObject(sketch31)
sketch31.AttachmentSupport = (doc.XY_Plane, [""])
sketch31.MapMode = "FlatFace"
sketch31.AttachmentOffset = App.Placement(Vector(0, 0, -3.076724), App.Rotation())
sketch31.addGeometry(Part.Circle(Vector(135.205435, 5.102277, 0), Vector(0, 0, 1), 1.27), False)
sketch31.addConstraint(Sketcher.Constraint("Diameter", 0, Q("2.54 mm")))
sketch31.addConstraint(Sketcher.Constraint("DistanceX", -1, 1, 0, 3, Q("135.205435 mm")))
sketch31.addConstraint(Sketcher.Constraint("DistanceY", -1, 1, 0, 3, Q("5.102277 mm")))
sketch31.setExpression("Constraints[0]", "Params.sketch31_diameter")
pocket30 = doc.addObject("PartDesign::Pocket", "Pocket029")
body.addObject(pocket30)
pocket30.Profile = sketch31
pocket30.Type = "ThroughAll"

# Sketch on XY plane
sketch32 = doc.addObject("Sketcher::SketchObject", "Sketch031")
body.addObject(sketch32)
sketch32.AttachmentSupport = (doc.XY_Plane, [""])
sketch32.MapMode = "FlatFace"
sketch32.AttachmentOffset = App.Placement(Vector(0, 0, -3.076724), App.Rotation())
sketch32.addGeometry(Part.Circle(Vector(135.205435, -4.897723, 0), Vector(0, 0, 1), 1.27), False)
sketch32.addConstraint(Sketcher.Constraint("Diameter", 0, Q("2.54 mm")))
sketch32.addConstraint(Sketcher.Constraint("DistanceX", -1, 1, 0, 3, Q("135.205435 mm")))
sketch32.addConstraint(Sketcher.Constraint("DistanceY", 0, 3, -1, 1, Q("4.897723 mm")))
sketch32.setExpression("Constraints[0]", "Params.sketch32_diameter")
pocket31 = doc.addObject("PartDesign::Pocket", "Pocket030")
body.addObject(pocket31)
pocket31.Profile = sketch32
pocket31.Type = "ThroughAll"

# Sketch on XY plane
sketch33 = doc.addObject("Sketcher::SketchObject", "Sketch032")
body.addObject(sketch33)
sketch33.AttachmentSupport = (doc.XY_Plane, [""])
sketch33.MapMode = "FlatFace"
sketch33.AttachmentOffset = App.Placement(Vector(0, 0, -3.076724), App.Rotation())
sketch33.addGeometry(Part.Circle(Vector(135.205435, -14.897723, 0), Vector(0, 0, 1), 1.27), False)
sketch33.addConstraint(Sketcher.Constraint("Diameter", 0, Q("2.54 mm")))
sketch33.addConstraint(Sketcher.Constraint("DistanceX", -1, 1, 0, 3, Q("135.205435 mm")))
sketch33.addConstraint(Sketcher.Constraint("DistanceY", 0, 3, -1, 1, Q("14.897723 mm")))
sketch33.setExpression("Constraints[0]", "Params.sketch33_diameter")
pocket32 = doc.addObject("PartDesign::Pocket", "Pocket031")
body.addObject(pocket32)
pocket32.Profile = sketch33
pocket32.Type = "ThroughAll"

doc.recompute()
